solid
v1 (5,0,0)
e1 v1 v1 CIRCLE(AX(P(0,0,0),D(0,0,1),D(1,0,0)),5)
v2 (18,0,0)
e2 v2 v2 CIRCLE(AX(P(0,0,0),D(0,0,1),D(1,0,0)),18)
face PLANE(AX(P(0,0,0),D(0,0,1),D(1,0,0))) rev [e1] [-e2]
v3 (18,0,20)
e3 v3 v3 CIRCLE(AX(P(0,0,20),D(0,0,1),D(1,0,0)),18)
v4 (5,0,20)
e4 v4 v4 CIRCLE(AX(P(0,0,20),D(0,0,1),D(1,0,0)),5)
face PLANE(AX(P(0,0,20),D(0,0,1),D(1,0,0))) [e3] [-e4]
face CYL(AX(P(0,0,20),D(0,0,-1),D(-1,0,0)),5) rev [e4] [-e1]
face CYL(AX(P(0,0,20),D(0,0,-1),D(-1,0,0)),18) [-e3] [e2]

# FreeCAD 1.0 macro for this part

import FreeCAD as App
import Part
import Sketcher
from FreeCAD import Vector

doc = App.newDocument("Part")
body = doc.addObject("PartDesign::Body", "Body")

sketch1 = body.newObject("Sketcher::SketchObject", "Sketch")
sketch1.AttachmentSupport = (doc.getObject("XY_Plane"), [""])
sketch1.MapMode = "FlatFace"
sketch1.addGeometry(Part.Circle(Vector(0, 0, 0), Vector(0, 0, 1), 18), False)
sketch1.addConstraint([
    Sketcher.Constraint("Coincident", 0, 3, -1, 1),
    Sketcher.Constraint("Diameter", 0, 36.0),
])
pad1 = body.newObject("PartDesign::Pad", "Pad")
pad1.Profile = sketch1
pad1.Length = 20

sketch2 = body.newObject("Sketcher::SketchObject", "Sketch001")
sketch2.AttachmentSupport = (doc.getObject("XY_Plane"), [""])
sketch2.MapMode = "FlatFace"
sketch2.addGeometry(Part.Circle(Vector(0, 0, 0), Vector(0, 0, 1), 5), False)
sketch2.addConstraint([
    Sketcher.Constraint("Coincident", 0, 3, -1, 1),
    Sketcher.Constraint("Diameter", 0, 10.0),
])
pocket1 = body.newObject("PartDesign::Pocket", "Pocket")
pocket1.Profile = sketch2
pocket1.Length = 20
pocket1.Reversed = True

doc.recompute()
